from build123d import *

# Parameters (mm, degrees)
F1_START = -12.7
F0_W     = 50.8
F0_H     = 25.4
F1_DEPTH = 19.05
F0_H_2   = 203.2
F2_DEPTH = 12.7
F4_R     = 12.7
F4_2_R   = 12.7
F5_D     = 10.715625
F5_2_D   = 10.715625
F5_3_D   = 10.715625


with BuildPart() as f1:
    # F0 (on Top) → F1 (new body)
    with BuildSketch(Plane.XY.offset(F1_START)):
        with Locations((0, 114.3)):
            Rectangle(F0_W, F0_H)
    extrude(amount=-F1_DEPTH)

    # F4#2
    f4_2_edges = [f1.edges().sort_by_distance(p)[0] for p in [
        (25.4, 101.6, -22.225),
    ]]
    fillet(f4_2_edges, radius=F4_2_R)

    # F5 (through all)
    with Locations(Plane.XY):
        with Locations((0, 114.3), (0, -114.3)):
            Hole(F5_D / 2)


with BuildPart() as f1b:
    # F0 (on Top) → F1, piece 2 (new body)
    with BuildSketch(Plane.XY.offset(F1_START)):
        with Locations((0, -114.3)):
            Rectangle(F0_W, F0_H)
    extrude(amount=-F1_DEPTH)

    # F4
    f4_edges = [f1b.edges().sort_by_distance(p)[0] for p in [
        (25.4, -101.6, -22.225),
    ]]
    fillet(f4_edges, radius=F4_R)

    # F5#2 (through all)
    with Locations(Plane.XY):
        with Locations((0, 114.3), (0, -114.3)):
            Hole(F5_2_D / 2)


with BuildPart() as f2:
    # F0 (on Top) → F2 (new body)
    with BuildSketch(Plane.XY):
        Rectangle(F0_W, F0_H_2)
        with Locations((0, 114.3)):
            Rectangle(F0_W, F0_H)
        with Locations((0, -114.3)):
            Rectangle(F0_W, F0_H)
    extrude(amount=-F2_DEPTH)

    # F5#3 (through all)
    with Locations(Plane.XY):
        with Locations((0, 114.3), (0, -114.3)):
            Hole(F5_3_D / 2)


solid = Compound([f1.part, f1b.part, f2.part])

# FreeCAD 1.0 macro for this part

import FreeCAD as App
import Part
import Sketcher
Q = App.Units.Quantity


def edges_at(feature, points):
    """Names of the edges that pass closest to the given points."""
    edges = feature.Shape.Edges
    near = lambda p: min(range(len(edges)), key=lambda i: edges[i].distToShape(Part.Vertex(*p))[0])
    return sorted({f"Edge{near(p) + 1}" for p in points})

doc = App.newDocument("Part")
body = doc.addObject("PartDesign::Body", "Body")

# Sketch on XY plane
sketch1 = body.newObject("Sketcher::SketchObject", "Sketch")
sketch1.AttachmentSupport = (doc.getObject("XY_Plane"), [""])
sketch1.MapMode = "FlatFace"
sketch1.AttachmentOffset = App.Placement(App.Vector(0, 0, -0.5 * 25.4), App.Rotation())
sketch1.addGeometry([
    Part.LineSegment(App.Vector(-25, 127, 0), App.Vector(-25, 102, 0)),
    Part.LineSegment(App.Vector(-25, 102, 0), App.Vector(25, 102, 0)),
    Part.LineSegment(App.Vector(25, 102, 0), App.Vector(25, 127, 0)),
    Part.LineSegment(App.Vector(25, 127, 0), App.Vector(-25, 127, 0)),
], False)
sketch1.addConstraint([
    Sketcher.Constraint("Coincident", 0, 2, 1, 1),
    Sketcher.Constraint("Coincident", 1, 2, 2, 1),
    Sketcher.Constraint("Coincident", 2, 2, 3, 1),
    Sketcher.Constraint("Coincident", 3, 2, 0, 1),
    Sketcher.Constraint("Vertical", 0),
    Sketcher.Constraint("Horizontal", 1),
    Sketcher.Constraint("Vertical", 2),
    Sketcher.Constraint("Horizontal", 3),
    Sketcher.Constraint("DistanceX", 1, 1, 1, 2, Q("2 in")),
    Sketcher.Constraint("DistanceY", 0, 2, 0, 1, Q("1 in")),
    Sketcher.Constraint("DistanceX", 0, 2, -1, 1, Q("1 in")),
    Sketcher.Constraint("DistanceY", -1, 1, 0, 2, Q("4 in")),
])
pad1 = body.newObject("PartDesign::Pad", "Pad")
pad1.Profile = sketch1
pad1.Length = Q("0.75 in")
pad1.Reversed = True
doc.recompute()

fillet = body.newObject("PartDesign::Fillet", "Fillet")
fillet.Base = (pad1, edges_at(pad1, [(25.4, 101.6, -22.225)]))
fillet.Radius = Q("0.5 in")

# Sketch on XY plane
sketch2 = body.newObject("Sketcher::SketchObject", "Sketch001")
sketch2.AttachmentSupport = (doc.getObject("XY_Plane"), [""])
sketch2.MapMode = "FlatFace"
sketch2.addGeometry([
    Part.Circle(App.Vector(0, 114, 0), App.Vector(0, 0, 1), 5),
    Part.Circle(App.Vector(0, -114, 0), App.Vector(0, 0, 1), 5),
], False)
sketch2.addConstraint([
    Sketcher.Constraint("Equal", 0, 1),
    Sketcher.Constraint("Symmetric", 0, 3, 1, 3, -1, 1),
    Sketcher.Constraint("PointOnObject", 0, 3, -2),
    Sketcher.Constraint("Diameter", 0, Q("0.421875 in")),
    Sketcher.Constraint("DistanceY", 1, 3, 0, 3, Q("9 in")),
])
doc.recompute()
hole = body.newObject("PartDesign::Hole", "Hole")
hole.Profile = sketch2
hole.ThreadType = "None"
hole.Diameter = Q("0.421875 in")
hole.DepthType = "ThroughAll"
body2 = doc.addObject("PartDesign::Body", "Body001")

# Sketch on XY plane
sketch3 = body2.newObject("Sketcher::SketchObject", "Sketch002")
sketch3.AttachmentSupport = (doc.getObject("XY_Plane001"), [""])
sketch3.MapMode = "FlatFace"
sketch3.AttachmentOffset = App.Placement(App.Vector(0, 0, -0.5 * 25.4), App.Rotation())
sketch3.addGeometry([
    Part.LineSegment(App.Vector(-25, -102, 0), App.Vector(-25, -127, 0)),
    Part.LineSegment(App.Vector(-25, -127, 0), App.Vector(25, -127, 0)),
    Part.LineSegment(App.Vector(25, -127, 0), App.Vector(25, -102, 0)),
    Part.LineSegment(App.Vector(25, -102, 0), App.Vector(-25, -102, 0)),
], False)
sketch3.addConstraint([
    Sketcher.Constraint("Coincident", 0, 2, 1, 1),
    Sketcher.Constraint("Coincident", 1, 2, 2, 1),
    Sketcher.Constraint("Coincident", 2, 2, 3, 1),
    Sketcher.Constraint("Coincident", 3, 2, 0, 1),
    Sketcher.Constraint("Vertical", 0),
    Sketcher.Constraint("Horizontal", 1),
    Sketcher.Constraint("Vertical", 2),
    Sketcher.Constraint("Horizontal", 3),
    Sketcher.Constraint("DistanceX", 1, 1, 1, 2, Q("2 in")),
    Sketcher.Constraint("DistanceY", 0, 2, 0, 1, Q("1 in")),
    Sketcher.Constraint("DistanceX", 0, 2, -1, 1, Q("1 in")),
    Sketcher.Constraint("DistanceY", 0, 2, -1, 1, Q("5 in")),
])
pad2 = body2.newObject("PartDesign::Pad", "Pad001")
pad2.Profile = sketch3
pad2.Length = Q("0.75 in")
pad2.Reversed = True
doc.recompute()

fillet2 = body2.newObject("PartDesign::Fillet", "Fillet001")
fillet2.Base = (pad2, edges_at(pad2, [(25.4, -101.6, -22.225)]))
fillet2.Radius = Q("0.5 in")

# Sketch on XY plane
sketch4 = body2.newObject("Sketcher::SketchObject", "Sketch003")
sketch4.AttachmentSupport = (doc.getObject("XY_Plane001"), [""])
sketch4.MapMode = "FlatFace"
sketch4.addGeometry([
    Part.Circle(App.Vector(0, 114, 0), App.Vector(0, 0, 1), 5),
    Part.Circle(App.Vector(0, -114, 0), App.Vector(0, 0, 1), 5),
], False)
sketch4.addConstraint([
    Sketcher.Constraint("Equal", 0, 1),
    Sketcher.Constraint("Symmetric", 0, 3, 1, 3, -1, 1),
    Sketcher.Constraint("PointOnObject", 0, 3, -2),
    Sketcher.Constraint("Diameter", 0, Q("0.421875 in")),
    Sketcher.Constraint("DistanceY", 1, 3, 0, 3, Q("9 in")),
])
doc.recompute()
hole2 = body2.newObject("PartDesign::Hole", "Hole001")
hole2.Profile = sketch4
hole2.ThreadType = "None"
hole2.Diameter = Q("0.421875 in")
hole2.DepthType = "ThroughAll"
body3 = doc.addObject("PartDesign::Body", "Body002")

# Sketch on XY plane
sketch5 = body3.newObject("Sketcher::SketchObject", "Sketch004")
sketch5.AttachmentSupport = (doc.getObject("XY_Plane002"), [""])
sketch5.MapMode = "FlatFace"
sketch5.addGeometry([
    Part.LineSegment(App.Vector(25, 127, 0), App.Vector(-25, 127, 0)),
    Part.LineSegment(App.Vector(-25, 127, 0), App.Vector(-25, -127, 0)),
    Part.LineSegment(App.Vector(-25, -127, 0), App.Vector(25, -127, 0)),
    Part.LineSegment(App.Vector(25, -127, 0), App.Vector(25, 127, 0)),
], False)
sketch5.addConstraint([
    Sketcher.Constraint("Coincident", 0, 2, 1, 1),
    Sketcher.Constraint("Coincident", 1, 2, 2, 1),
    Sketcher.Constraint("Coincident", 2, 2, 3, 1),
    Sketcher.Constraint("Coincident", 3, 2, 0, 1),
    Sketcher.Constraint("Horizontal", 0),
    Sketcher.Constraint("Vertical", 1),
    Sketcher.Constraint("Horizontal", 2),
    Sketcher.Constraint("Vertical", 3),
    Sketcher.Constraint("Symmetric", 0, 2, 2, 2, -1, 1),
    Sketcher.Constraint("DistanceX", 0, 2, 0, 1, Q("2 in")),
    Sketcher.Constraint("DistanceY", 1, 2, 1, 1, Q("10 in")),
])
pad3 = body3.newObject("PartDesign::Pad", "Pad002")
pad3.Profile = sketch5
pad3.Length = Q("0.5 in")
pad3.Reversed = True

# Sketch on XY plane
sketch6 = body3.newObject("Sketcher::SketchObject", "Sketch005")
sketch6.AttachmentSupport = (doc.getObject("XY_Plane002"), [""])
sketch6.MapMode = "FlatFace"
sketch6.addGeometry([
    Part.Circle(App.Vector(0, 114, 0), App.Vector(0, 0, 1), 5),
    Part.Circle(App.Vector(0, -114, 0), App.Vector(0, 0, 1), 5),
], False)
sketch6.addConstraint([
    Sketcher.Constraint("Equal", 0, 1),
    Sketcher.Constraint("Symmetric", 0, 3, 1, 3, -1, 1),
    Sketcher.Constraint("PointOnObject", 0, 3, -2),
    Sketcher.Constraint("Diameter", 0, Q("0.421875 in")),
    Sketcher.Constraint("DistanceY", 1, 3, 0, 3, Q("9 in")),
])
doc.recompute()
hole3 = body3.newObject("PartDesign::Hole", "Hole002")
hole3.Profile = sketch6
hole3.ThreadType = "None"
hole3.Diameter = Q("0.421875 in")
hole3.DepthType = "ThroughAll"

doc.recompute()
